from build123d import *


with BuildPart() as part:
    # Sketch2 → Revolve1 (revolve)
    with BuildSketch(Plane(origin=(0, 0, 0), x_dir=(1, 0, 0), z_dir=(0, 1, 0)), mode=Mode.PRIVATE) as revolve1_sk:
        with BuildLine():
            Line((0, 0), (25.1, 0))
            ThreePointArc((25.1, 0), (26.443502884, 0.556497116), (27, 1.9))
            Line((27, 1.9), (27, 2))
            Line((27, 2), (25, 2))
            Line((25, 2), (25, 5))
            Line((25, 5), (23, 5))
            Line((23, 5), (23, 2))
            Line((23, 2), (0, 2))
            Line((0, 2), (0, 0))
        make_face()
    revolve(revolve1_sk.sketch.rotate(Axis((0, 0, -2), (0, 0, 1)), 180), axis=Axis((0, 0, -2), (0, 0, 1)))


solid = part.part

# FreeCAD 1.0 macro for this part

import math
import FreeCAD as App
import Part
import Sketcher

V = App.Vector
Q = App.Units.Quantity

doc = App.newDocument("Part")
body = doc.addObject("PartDesign::Body", "Body")

# Sketch on XZ plane
sketch1 = doc.addObject("Sketcher::SketchObject", "Sketch")
body.addObject(sketch1)
sketch1.AttachmentSupport = (doc.XZ_Plane, [""])
sketch1.MapMode = "FlatFace"
sketch1.addGeometry(Part.LineSegment(V(0, 0, 0), V(25.1, 0, 0)), False)
sketch1.addGeometry(Part.ArcOfCircle(Part.Circle(V(25.1, -1.9, 0), V(0, 0, 1), 1.9), math.radians(0), math.radians(90)), False)
sketch1.addGeometry(Part.LineSegment(V(27, -1.9, 0), V(27, -2, 0)), False)
sketch1.addGeometry(Part.LineSegment(V(27, -2, 0), V(25, -2, 0)), False)
sketch1.addGeometry(Part.LineSegment(V(25, -2, 0), V(25, -5, 0)), False)
sketch1.addGeometry(Part.LineSegment(V(25, -5, 0), V(23, -5, 0)), False)
sketch1.addGeometry(Part.LineSegment(V(23, -5, 0), V(23, -2, 0)), False)
sketch1.addGeometry(Part.LineSegment(V(23, -2, 0), V(0, -2, 0)), False)
sketch1.addGeometry(Part.LineSegment(V(0, -2, 0), V(0, 0, 0)), False)
sketch1.addConstraint(Sketcher.Constraint("Tangent", 0, 2, 1, 2))
sketch1.addConstraint(Sketcher.Constraint("Tangent", 1, 1, 2, 1))
sketch1.addConstraint(Sketcher.Constraint("Coincident", 2, 2, 3, 1))
sketch1.addConstraint(Sketcher.Constraint("Coincident", 3, 2, 4, 1))
sketch1.addConstraint(Sketcher.Constraint("Coincident", 4, 2, 5, 1))
sketch1.addConstraint(Sketcher.Constraint("Coincident", 5, 2, 6, 1))
sketch1.addConstraint(Sketcher.Constraint("Coincident", 6, 2, 7, 1))
sketch1.addConstraint(Sketcher.Constraint("Coincident", 7, 2, 8, 1))
sketch1.addConstraint(Sketcher.Constraint("Coincident", 8, 2, 0, 1))
sketch1.addConstraint(Sketcher.Constraint("Horizontal", 0))
sketch1.addConstraint(Sketcher.Constraint("Vertical", 2))
sketch1.addConstraint(Sketcher.Constraint("Horizontal", 3))
sketch1.addConstraint(Sketcher.Constraint("Vertical", 4))
sketch1.addConstraint(Sketcher.Constraint("Horizontal", 5))
sketch1.addConstraint(Sketcher.Constraint("Vertical", 6))
sketch1.addConstraint(Sketcher.Constraint("Horizontal", 7))
sketch1.addConstraint(Sketcher.Constraint("Vertical", 8))
sketch1.addConstraint(Sketcher.Constraint("Coincident", 8, 2, -1, 1))
sketch1.addConstraint(Sketcher.Constraint("Horizontal", 3, 2, 6, 2))
sketch1.addConstraint(Sketcher.Constraint("Equal", 3, 5))
sketch1.addConstraint(Sketcher.Constraint("Equal", 5, 8))
sketch1.addConstraint(Sketcher.Constraint("Radius", 1, Q("1.9 mm")))
sketch1.addConstraint(Sketcher.Constraint("DistanceX", 3, 2, 3, 1, Q("2 mm")))
sketch1.addConstraint(Sketcher.Constraint("DistanceX", 7, 2, 7, 1, Q("23 mm")))
sketch1.addConstraint(Sketcher.Constraint("DistanceY", 4, 2, 4, 1, Q("3 mm")))
revolution = doc.addObject("PartDesign::Revolution", "Revolution")
body.addObject(revolution)
revolution.Profile = sketch1
revolution.ReferenceAxis = (sketch1, ["V_Axis"])
revolution.Angle = 360

doc.recompute()
